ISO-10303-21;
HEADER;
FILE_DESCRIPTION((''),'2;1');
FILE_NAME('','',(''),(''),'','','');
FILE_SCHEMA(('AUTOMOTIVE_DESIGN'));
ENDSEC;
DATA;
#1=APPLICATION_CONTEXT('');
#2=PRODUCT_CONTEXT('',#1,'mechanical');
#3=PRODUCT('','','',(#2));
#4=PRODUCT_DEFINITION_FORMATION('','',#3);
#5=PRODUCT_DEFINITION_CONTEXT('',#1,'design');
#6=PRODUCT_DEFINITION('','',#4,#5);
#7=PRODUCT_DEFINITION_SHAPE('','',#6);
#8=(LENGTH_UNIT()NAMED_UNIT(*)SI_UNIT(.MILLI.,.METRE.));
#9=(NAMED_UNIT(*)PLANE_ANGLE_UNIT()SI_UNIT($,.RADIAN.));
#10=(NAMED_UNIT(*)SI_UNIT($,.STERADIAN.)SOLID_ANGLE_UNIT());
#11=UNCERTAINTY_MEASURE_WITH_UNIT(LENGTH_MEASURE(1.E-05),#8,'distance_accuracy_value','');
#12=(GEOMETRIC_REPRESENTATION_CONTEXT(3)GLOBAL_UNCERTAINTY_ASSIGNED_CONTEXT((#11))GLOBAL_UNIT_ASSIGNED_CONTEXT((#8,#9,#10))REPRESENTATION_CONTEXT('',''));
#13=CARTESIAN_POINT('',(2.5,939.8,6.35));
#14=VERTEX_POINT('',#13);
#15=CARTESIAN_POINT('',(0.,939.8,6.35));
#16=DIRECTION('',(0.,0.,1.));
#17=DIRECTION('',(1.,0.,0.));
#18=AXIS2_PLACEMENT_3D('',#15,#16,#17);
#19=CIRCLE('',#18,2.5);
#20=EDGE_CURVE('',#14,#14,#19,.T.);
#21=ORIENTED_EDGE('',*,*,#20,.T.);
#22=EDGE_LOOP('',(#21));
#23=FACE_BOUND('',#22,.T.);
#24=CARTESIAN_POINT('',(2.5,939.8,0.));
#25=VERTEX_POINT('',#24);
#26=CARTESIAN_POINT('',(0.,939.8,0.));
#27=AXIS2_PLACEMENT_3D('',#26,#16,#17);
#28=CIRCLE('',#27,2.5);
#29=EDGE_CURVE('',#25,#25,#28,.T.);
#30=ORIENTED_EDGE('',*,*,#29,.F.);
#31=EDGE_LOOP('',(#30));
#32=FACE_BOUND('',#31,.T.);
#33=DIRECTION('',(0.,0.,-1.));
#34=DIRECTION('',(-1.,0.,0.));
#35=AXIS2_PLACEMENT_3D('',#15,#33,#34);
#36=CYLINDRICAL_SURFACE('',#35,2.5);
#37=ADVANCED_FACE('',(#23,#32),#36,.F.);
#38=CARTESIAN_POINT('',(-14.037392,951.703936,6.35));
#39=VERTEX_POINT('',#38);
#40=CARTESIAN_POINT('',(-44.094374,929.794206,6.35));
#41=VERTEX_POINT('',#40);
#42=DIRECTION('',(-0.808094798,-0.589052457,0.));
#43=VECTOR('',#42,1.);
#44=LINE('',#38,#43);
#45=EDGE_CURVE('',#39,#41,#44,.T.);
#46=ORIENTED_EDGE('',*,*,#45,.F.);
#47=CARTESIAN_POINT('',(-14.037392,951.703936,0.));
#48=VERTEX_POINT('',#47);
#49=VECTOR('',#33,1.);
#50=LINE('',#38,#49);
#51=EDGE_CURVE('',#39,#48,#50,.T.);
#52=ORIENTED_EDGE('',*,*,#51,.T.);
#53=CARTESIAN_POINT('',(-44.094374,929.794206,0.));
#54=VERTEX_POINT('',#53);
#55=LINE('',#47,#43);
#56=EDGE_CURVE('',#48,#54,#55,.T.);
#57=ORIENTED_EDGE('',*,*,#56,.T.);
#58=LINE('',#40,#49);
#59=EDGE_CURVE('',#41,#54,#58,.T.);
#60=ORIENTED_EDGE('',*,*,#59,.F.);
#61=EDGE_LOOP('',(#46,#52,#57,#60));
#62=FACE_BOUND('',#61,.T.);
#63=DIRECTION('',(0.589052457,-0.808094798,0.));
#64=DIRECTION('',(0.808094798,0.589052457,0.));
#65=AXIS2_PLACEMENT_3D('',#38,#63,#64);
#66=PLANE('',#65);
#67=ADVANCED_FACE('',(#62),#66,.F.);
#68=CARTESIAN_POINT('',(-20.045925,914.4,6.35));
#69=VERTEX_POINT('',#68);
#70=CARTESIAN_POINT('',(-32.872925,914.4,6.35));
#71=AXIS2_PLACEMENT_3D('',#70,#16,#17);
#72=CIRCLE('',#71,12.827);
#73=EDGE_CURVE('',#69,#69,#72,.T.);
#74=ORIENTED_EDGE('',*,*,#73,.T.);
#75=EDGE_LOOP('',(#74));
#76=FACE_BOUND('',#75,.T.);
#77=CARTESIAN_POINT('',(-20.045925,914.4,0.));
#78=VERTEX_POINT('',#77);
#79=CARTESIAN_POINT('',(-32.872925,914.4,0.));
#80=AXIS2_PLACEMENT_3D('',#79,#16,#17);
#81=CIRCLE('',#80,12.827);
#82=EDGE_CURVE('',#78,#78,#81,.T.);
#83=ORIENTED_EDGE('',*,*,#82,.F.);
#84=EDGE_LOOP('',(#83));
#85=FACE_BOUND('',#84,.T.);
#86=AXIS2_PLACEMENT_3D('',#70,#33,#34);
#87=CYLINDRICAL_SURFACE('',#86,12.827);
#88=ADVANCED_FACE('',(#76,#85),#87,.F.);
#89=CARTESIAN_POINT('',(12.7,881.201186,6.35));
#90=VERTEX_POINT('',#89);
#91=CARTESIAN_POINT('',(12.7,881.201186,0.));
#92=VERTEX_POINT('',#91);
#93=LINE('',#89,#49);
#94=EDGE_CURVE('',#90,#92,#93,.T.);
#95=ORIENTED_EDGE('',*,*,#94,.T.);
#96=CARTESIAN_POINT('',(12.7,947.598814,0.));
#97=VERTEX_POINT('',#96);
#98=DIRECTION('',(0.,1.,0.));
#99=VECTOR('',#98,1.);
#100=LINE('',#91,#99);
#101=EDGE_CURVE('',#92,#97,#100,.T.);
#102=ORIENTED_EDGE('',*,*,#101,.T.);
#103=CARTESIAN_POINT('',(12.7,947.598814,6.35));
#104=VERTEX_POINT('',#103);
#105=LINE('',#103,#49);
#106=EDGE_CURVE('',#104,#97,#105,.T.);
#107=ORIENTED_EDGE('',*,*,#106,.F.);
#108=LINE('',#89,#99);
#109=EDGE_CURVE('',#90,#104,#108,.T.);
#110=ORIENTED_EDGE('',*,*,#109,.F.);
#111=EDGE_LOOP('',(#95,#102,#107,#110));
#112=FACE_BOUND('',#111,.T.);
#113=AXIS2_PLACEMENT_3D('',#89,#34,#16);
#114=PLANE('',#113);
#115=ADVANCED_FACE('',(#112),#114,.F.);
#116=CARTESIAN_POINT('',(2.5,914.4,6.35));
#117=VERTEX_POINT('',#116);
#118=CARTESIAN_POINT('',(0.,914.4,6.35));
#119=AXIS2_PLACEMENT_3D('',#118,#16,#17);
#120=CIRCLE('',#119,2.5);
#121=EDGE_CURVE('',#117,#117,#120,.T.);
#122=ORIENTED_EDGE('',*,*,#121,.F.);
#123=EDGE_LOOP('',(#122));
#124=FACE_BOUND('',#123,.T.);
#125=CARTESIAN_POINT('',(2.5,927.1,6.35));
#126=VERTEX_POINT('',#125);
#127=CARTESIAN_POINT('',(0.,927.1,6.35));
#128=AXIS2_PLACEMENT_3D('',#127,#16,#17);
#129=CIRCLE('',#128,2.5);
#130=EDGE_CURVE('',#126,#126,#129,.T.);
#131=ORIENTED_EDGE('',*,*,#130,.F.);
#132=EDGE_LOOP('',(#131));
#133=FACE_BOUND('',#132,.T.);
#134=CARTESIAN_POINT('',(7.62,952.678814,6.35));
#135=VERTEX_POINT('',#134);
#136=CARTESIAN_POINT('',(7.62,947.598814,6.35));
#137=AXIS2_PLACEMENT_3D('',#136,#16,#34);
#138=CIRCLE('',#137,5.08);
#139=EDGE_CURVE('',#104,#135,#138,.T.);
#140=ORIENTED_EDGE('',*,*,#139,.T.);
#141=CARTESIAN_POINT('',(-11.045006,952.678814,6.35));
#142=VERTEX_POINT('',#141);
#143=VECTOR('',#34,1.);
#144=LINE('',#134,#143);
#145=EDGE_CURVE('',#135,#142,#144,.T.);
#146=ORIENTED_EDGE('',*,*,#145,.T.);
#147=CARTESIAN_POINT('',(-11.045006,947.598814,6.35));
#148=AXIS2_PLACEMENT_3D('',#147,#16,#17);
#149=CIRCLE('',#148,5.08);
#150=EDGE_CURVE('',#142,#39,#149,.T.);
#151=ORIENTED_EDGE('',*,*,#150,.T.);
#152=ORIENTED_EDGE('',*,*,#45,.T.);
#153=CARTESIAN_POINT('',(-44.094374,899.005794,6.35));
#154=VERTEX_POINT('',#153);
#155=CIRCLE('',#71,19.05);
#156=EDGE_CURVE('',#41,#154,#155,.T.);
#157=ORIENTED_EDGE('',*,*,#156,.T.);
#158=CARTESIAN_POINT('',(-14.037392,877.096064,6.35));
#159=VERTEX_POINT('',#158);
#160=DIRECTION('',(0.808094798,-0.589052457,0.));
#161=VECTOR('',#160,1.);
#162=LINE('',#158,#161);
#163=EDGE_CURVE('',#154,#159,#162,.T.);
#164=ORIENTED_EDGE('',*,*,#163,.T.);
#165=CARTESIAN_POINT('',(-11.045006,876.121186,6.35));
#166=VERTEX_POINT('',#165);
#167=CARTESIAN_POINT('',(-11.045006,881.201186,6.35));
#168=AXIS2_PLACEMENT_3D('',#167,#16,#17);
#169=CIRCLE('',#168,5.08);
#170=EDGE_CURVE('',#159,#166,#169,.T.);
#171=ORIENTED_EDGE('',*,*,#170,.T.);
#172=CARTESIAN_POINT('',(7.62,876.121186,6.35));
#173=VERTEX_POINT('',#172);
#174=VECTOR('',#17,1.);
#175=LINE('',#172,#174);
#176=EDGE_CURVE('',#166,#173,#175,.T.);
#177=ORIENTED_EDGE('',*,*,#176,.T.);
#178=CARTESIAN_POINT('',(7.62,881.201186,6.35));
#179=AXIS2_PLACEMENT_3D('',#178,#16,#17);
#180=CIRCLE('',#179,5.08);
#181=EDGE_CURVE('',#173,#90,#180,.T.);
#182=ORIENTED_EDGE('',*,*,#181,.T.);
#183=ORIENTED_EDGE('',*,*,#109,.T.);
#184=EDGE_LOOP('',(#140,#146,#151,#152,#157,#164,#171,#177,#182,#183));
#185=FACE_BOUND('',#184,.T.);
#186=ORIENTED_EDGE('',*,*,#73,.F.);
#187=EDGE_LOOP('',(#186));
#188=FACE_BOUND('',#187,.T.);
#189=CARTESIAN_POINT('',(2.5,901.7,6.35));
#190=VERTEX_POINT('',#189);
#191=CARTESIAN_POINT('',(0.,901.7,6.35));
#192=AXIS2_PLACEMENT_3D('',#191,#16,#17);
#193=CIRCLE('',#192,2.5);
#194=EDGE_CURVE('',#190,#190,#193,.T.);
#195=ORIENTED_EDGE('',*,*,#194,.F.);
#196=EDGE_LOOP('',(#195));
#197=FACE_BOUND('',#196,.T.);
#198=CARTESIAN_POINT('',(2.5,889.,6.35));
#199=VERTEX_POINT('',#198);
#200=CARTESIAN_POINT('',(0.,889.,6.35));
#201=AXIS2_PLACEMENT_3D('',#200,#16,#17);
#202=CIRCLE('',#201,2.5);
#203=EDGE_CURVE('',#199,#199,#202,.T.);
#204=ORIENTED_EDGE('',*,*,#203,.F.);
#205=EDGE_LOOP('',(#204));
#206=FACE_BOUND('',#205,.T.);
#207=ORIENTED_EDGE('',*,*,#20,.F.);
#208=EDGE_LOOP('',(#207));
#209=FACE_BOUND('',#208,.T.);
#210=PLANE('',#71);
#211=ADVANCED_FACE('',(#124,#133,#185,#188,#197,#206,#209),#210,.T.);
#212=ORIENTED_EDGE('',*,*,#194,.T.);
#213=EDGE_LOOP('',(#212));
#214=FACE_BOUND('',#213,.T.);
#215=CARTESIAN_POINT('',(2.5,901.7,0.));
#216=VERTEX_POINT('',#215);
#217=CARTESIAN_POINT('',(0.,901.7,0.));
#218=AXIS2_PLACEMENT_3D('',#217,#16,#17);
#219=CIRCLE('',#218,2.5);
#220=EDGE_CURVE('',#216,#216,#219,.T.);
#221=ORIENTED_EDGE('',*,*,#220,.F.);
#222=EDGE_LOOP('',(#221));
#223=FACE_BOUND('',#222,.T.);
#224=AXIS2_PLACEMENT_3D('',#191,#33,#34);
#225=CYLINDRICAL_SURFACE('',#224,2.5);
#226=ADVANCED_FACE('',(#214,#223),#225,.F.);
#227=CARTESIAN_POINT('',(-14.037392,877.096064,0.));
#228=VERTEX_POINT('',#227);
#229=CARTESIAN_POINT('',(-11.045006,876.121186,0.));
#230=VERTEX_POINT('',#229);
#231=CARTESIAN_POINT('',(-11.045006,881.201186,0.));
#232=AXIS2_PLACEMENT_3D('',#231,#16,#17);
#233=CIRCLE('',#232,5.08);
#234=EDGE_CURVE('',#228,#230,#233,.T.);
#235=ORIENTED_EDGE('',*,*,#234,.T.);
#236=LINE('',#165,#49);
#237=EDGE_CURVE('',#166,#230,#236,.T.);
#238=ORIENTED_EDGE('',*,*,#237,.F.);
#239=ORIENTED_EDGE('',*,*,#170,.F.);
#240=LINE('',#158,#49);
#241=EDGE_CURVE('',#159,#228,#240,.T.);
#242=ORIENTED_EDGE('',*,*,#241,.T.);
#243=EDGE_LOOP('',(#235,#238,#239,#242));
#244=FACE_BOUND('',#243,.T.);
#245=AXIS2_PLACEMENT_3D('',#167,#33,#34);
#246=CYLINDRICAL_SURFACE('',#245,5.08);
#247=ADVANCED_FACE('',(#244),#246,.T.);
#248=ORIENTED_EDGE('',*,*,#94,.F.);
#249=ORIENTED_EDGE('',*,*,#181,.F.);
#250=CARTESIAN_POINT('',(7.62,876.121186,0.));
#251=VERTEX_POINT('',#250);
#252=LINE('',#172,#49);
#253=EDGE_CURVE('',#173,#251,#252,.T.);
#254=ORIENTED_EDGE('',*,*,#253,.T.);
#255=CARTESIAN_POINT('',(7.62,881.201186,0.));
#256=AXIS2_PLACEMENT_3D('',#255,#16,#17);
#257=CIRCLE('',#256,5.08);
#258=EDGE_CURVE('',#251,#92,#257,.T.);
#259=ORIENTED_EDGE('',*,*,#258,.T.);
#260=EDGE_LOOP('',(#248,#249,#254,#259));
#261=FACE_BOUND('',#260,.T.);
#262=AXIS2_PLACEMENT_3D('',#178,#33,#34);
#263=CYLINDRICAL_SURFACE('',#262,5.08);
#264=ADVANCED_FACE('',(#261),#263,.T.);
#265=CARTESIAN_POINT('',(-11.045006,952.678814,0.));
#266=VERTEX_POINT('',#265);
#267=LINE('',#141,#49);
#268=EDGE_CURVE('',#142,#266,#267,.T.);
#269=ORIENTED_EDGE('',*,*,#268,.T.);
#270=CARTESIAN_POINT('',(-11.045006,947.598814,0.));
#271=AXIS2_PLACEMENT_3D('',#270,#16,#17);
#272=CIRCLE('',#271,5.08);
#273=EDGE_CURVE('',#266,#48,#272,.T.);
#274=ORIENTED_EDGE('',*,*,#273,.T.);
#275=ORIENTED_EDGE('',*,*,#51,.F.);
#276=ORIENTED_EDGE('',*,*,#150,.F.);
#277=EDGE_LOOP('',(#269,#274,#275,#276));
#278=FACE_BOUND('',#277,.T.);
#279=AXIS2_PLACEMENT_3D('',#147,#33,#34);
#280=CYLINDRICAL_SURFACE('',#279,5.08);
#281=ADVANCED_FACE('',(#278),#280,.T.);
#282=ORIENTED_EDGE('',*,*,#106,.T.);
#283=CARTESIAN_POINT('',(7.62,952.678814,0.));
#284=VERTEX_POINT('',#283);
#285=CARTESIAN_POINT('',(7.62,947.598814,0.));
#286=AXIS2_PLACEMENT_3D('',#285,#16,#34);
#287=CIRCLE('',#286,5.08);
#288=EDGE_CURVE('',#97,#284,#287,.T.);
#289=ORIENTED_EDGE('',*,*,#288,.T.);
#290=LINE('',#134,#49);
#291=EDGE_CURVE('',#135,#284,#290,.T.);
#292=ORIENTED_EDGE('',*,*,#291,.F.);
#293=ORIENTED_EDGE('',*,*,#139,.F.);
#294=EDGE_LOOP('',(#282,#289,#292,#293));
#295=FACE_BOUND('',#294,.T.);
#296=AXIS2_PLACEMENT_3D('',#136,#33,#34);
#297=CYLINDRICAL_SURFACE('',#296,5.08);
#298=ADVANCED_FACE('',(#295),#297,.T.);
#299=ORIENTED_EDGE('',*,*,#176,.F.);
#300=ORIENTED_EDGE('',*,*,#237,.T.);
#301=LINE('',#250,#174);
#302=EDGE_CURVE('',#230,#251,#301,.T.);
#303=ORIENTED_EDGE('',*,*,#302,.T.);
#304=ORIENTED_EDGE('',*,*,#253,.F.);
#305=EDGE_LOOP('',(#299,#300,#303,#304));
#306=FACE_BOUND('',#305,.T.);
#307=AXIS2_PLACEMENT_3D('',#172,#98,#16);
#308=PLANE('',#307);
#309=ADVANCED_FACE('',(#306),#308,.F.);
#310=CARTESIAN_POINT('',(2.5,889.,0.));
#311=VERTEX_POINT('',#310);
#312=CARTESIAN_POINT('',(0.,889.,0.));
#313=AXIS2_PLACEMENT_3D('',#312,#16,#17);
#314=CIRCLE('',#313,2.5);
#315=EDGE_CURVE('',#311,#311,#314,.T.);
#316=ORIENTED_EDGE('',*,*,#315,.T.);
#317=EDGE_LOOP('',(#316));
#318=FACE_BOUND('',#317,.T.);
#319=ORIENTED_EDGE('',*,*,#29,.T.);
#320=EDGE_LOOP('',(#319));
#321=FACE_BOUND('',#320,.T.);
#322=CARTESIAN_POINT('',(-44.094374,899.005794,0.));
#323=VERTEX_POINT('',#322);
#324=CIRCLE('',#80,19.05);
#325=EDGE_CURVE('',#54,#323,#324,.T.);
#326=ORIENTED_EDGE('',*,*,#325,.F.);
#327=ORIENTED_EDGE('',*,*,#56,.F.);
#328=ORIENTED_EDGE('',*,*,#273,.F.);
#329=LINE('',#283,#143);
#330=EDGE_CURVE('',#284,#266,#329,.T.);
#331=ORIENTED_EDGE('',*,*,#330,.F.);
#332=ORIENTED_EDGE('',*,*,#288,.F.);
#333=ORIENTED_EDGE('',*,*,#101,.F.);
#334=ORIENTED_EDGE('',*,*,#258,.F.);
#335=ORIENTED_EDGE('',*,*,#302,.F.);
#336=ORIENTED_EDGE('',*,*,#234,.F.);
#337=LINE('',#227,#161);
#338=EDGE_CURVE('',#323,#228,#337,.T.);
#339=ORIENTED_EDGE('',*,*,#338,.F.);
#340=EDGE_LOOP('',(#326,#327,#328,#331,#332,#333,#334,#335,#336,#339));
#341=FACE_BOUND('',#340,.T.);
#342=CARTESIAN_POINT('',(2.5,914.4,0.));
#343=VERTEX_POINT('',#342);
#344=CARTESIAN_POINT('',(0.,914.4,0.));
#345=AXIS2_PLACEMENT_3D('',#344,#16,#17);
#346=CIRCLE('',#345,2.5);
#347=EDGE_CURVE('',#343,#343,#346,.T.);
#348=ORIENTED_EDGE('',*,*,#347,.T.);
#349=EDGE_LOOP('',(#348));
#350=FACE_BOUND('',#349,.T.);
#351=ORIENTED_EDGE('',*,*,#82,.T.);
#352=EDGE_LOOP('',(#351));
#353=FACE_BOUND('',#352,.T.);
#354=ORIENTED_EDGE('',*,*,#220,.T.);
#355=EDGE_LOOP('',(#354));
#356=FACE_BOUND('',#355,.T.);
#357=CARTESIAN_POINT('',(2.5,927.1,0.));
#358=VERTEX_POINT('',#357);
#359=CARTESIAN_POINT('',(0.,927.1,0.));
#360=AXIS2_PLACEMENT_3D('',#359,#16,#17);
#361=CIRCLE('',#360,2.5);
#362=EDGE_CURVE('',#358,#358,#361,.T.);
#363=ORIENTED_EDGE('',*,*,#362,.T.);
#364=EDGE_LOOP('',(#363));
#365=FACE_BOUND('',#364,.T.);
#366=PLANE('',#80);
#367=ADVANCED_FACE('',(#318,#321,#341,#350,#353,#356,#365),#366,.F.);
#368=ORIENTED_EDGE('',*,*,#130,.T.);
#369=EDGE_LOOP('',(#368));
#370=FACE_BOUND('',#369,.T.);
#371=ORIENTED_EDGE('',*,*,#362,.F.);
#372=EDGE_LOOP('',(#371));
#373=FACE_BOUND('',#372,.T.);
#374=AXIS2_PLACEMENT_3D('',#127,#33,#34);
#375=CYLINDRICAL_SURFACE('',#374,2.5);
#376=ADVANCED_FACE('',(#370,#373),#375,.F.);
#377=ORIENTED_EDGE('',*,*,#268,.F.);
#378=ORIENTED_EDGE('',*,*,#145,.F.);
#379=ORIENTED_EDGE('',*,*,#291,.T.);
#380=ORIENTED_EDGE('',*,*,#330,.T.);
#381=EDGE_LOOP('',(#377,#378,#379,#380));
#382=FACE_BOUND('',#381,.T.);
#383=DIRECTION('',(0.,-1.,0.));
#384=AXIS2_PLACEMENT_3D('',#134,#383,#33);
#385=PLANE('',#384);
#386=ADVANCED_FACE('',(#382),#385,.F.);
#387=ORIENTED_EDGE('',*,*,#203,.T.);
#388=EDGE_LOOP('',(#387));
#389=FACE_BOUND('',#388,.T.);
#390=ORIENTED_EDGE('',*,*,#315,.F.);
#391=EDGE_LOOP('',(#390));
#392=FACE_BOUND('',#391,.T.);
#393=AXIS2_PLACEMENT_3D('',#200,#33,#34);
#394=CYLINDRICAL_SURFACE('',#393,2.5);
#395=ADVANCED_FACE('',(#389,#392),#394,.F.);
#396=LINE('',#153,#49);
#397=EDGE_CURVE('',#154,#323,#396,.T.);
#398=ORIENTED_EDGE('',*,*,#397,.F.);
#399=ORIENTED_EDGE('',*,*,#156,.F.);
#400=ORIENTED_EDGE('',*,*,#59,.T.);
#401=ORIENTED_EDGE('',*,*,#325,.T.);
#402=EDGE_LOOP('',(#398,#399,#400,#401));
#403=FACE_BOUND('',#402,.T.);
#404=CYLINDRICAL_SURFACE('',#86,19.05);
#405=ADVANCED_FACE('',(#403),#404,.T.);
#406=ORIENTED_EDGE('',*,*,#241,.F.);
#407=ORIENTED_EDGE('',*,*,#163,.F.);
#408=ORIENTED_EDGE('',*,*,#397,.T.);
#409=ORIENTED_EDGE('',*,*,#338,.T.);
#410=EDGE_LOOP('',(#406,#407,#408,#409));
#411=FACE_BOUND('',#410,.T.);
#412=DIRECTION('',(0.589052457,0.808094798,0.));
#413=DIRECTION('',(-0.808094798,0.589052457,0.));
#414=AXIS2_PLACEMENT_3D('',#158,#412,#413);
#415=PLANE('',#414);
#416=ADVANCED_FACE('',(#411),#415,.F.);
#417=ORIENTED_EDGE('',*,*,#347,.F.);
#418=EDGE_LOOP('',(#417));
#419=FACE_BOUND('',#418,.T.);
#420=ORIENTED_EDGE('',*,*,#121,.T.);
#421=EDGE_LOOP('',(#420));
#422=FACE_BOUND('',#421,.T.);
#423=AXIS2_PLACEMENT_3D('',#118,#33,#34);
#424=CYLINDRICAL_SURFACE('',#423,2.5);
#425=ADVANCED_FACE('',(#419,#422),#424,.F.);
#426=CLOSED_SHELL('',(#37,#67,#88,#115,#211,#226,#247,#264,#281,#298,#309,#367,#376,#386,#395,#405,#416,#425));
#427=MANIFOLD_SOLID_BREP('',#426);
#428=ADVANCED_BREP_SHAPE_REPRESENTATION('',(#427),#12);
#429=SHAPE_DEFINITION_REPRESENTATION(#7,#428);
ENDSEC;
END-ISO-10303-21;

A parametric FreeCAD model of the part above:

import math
import FreeCAD as App
import Part
import Sketcher
from FreeCAD import Vector
Q = App.Units.Quantity

doc = App.newDocument("Part")
params = doc.addObject("Spreadsheet::Sheet", "Params")
for row, (alias, value) in enumerate([
    ("sketch1_radius", "0.2 in"),
    ("sketch1_diameter", "1.01 in"),
    ("sketch1_radius2", "0.75 in"),
    ("pad1_length", "0.25 in"),
], start=1):
    params.set(f"A{row}", alias)
    params.set(f"B{row}", "=" + value)
    params.setAlias(f"B{row}", alias)

body = doc.addObject("PartDesign::Body", "Body")

sketch1 = body.newObject("Sketcher::SketchObject", "Sketch")
sketch1.AttachmentSupport = (doc.getObject("XY_Plane"), [""])
sketch1.MapMode = "FlatFace"
sketch1.addGeometry([
    Part.LineSegment(Vector(7.62, 952.678814, 0), Vector(-11.045006, 952.678814, 0)),
    Part.ArcOfCircle(Part.Circle(Vector(-11.045006, 947.598814, 0), Vector(0, 0, 1), 5.08), math.radians(90), math.radians(126.089797)),
    Part.LineSegment(Vector(-14.037392, 951.703936, 0), Vector(-44.094374, 929.794206, 0)),
    Part.ArcOfCircle(Part.Circle(Vector(-32.872925, 914.4, 0), Vector(0, 0, 1), 19.05), math.radians(126.089796), math.radians(233.910204)),
    Part.LineSegment(Vector(-44.094374, 899.005794, 0), Vector(-14.037392, 877.096064, 0)),
    Part.ArcOfCircle(Part.Circle(Vector(-11.045006, 881.201186, 0), Vector(0, 0, 1), 5.08), math.radians(-126.089797), math.radians(-90)),
    Part.LineSegment(Vector(-11.045006, 876.121186, 0), Vector(7.62, 876.121186, 0)),
    Part.ArcOfCircle(Part.Circle(Vector(7.62, 881.201186, 0), Vector(0, 0, 1), 5.08), math.radians(-90), math.radians(0)),
    Part.LineSegment(Vector(12.7, 881.201186, 0), Vector(12.7, 947.598814, 0)),
    Part.ArcOfCircle(Part.Circle(Vector(7.62, 947.598814, 0), Vector(0, 0, 1), 5.08), math.radians(0), math.radians(90)),
    Part.Circle(Vector(-32.872925, 914.4, 0), Vector(0, 0, 1), 12.827),
    Part.Circle(Vector(0, 889, 0), Vector(0, 0, 1), 2.5),
    Part.Circle(Vector(0, 901.7, 0), Vector(0, 0, 1), 2.5),
    Part.Circle(Vector(0, 914.4, 0), Vector(0, 0, 1), 2.5),
    Part.Circle(Vector(0, 927.1, 0), Vector(0, 0, 1), 2.5),
    Part.Circle(Vector(0, 939.8, 0), Vector(0, 0, 1), 2.5),
], False)
sketch1.addConstraint([
    Sketcher.Constraint("Tangent", 0, 2, 1, 1),
    Sketcher.Constraint("Tangent", 1, 2, 2, 1),
    Sketcher.Constraint("Tangent", 2, 2, 3, 1),
    Sketcher.Constraint("Tangent", 3, 2, 4, 1),
    Sketcher.Constraint("Tangent", 4, 2, 5, 1),
    Sketcher.Constraint("Tangent", 5, 2, 6, 1),
    Sketcher.Constraint("Tangent", 6, 2, 7, 1),
    Sketcher.Constraint("Tangent", 7, 2, 8, 1),
    Sketcher.Constraint("Tangent", 8, 2, 9, 1),
    Sketcher.Constraint("Tangent", 9, 2, 0, 1),
    Sketcher.Constraint("Horizontal", 0),
    Sketcher.Constraint("Horizontal", 6),
    Sketcher.Constraint("Vertical", 8),
    Sketcher.Constraint("Coincident", 10, 3, 3, 3),
    Sketcher.Constraint("Equal", 1, 5),
    Sketcher.Constraint("Equal", 5, 7),
    Sketcher.Constraint("Equal", 7, 9),
    Sketcher.Constraint("Equal", 11, 12),
    Sketcher.Constraint("Equal", 12, 13),
    Sketcher.Constraint("Equal", 13, 14),
    Sketcher.Constraint("Equal", 14, 15),
    Sketcher.Constraint("PointOnObject", 11, 3, -2),
    Sketcher.Constraint("PointOnObject", 12, 3, -2),
    Sketcher.Constraint("PointOnObject", 13, 3, -2),
    Sketcher.Constraint("PointOnObject", 14, 3, -2),
    Sketcher.Constraint("PointOnObject", 15, 3, -2),
    Sketcher.Constraint("Horizontal", 10, 3, 13, 3),
    Sketcher.Constraint("Vertical", 1, 3, 5, 3),
    Sketcher.Constraint("Vertical", 2, 2, 3, 2),
    Sketcher.Constraint("Radius", 1, Q("0.2 in")),
    Sketcher.Constraint("Diameter", 10, Q("1.01 in")),
    Sketcher.Constraint("Radius", 3, Q("0.75 in")),
    Sketcher.Constraint("DistanceY", -1, 1, 3, 3, Q("36 in")),
    Sketcher.Constraint("DistanceY", -1, 1, 11, 3, Q("35 in")),
    Sketcher.Constraint("DistanceY", -1, 1, 15, 3, Q("37 in")),
    Sketcher.Constraint("DistanceY", 12, 3, 14, 3, Q("1 in")),
    Sketcher.Constraint("DistanceX", -1, 1, 7, 3, Q("0.3 in")),
    Sketcher.Constraint("DistanceY", -1, 1, 12, 3, Q("35.5 in")),
    Sketcher.Constraint("Diameter", 11, 5.0),
    Sketcher.Constraint("DistanceY", 8, 1, 8, 2, 66.397629),
    Sketcher.Constraint("Distance", 2, 37.194871),
    Sketcher.Constraint("DistanceX", 0, 2, 0, 1, 18.665006),
])
sketch1.setExpression("Constraints[29]", "Params.sketch1_radius")
sketch1.setExpression("Constraints[30]", "Params.sketch1_diameter")
sketch1.setExpression("Constraints[31]", "Params.sketch1_radius2")
pad1 = body.newObject("PartDesign::Pad", "Pad")
pad1.Profile = sketch1
pad1.setExpression("Length", "Params.pad1_length")

doc.recompute()
